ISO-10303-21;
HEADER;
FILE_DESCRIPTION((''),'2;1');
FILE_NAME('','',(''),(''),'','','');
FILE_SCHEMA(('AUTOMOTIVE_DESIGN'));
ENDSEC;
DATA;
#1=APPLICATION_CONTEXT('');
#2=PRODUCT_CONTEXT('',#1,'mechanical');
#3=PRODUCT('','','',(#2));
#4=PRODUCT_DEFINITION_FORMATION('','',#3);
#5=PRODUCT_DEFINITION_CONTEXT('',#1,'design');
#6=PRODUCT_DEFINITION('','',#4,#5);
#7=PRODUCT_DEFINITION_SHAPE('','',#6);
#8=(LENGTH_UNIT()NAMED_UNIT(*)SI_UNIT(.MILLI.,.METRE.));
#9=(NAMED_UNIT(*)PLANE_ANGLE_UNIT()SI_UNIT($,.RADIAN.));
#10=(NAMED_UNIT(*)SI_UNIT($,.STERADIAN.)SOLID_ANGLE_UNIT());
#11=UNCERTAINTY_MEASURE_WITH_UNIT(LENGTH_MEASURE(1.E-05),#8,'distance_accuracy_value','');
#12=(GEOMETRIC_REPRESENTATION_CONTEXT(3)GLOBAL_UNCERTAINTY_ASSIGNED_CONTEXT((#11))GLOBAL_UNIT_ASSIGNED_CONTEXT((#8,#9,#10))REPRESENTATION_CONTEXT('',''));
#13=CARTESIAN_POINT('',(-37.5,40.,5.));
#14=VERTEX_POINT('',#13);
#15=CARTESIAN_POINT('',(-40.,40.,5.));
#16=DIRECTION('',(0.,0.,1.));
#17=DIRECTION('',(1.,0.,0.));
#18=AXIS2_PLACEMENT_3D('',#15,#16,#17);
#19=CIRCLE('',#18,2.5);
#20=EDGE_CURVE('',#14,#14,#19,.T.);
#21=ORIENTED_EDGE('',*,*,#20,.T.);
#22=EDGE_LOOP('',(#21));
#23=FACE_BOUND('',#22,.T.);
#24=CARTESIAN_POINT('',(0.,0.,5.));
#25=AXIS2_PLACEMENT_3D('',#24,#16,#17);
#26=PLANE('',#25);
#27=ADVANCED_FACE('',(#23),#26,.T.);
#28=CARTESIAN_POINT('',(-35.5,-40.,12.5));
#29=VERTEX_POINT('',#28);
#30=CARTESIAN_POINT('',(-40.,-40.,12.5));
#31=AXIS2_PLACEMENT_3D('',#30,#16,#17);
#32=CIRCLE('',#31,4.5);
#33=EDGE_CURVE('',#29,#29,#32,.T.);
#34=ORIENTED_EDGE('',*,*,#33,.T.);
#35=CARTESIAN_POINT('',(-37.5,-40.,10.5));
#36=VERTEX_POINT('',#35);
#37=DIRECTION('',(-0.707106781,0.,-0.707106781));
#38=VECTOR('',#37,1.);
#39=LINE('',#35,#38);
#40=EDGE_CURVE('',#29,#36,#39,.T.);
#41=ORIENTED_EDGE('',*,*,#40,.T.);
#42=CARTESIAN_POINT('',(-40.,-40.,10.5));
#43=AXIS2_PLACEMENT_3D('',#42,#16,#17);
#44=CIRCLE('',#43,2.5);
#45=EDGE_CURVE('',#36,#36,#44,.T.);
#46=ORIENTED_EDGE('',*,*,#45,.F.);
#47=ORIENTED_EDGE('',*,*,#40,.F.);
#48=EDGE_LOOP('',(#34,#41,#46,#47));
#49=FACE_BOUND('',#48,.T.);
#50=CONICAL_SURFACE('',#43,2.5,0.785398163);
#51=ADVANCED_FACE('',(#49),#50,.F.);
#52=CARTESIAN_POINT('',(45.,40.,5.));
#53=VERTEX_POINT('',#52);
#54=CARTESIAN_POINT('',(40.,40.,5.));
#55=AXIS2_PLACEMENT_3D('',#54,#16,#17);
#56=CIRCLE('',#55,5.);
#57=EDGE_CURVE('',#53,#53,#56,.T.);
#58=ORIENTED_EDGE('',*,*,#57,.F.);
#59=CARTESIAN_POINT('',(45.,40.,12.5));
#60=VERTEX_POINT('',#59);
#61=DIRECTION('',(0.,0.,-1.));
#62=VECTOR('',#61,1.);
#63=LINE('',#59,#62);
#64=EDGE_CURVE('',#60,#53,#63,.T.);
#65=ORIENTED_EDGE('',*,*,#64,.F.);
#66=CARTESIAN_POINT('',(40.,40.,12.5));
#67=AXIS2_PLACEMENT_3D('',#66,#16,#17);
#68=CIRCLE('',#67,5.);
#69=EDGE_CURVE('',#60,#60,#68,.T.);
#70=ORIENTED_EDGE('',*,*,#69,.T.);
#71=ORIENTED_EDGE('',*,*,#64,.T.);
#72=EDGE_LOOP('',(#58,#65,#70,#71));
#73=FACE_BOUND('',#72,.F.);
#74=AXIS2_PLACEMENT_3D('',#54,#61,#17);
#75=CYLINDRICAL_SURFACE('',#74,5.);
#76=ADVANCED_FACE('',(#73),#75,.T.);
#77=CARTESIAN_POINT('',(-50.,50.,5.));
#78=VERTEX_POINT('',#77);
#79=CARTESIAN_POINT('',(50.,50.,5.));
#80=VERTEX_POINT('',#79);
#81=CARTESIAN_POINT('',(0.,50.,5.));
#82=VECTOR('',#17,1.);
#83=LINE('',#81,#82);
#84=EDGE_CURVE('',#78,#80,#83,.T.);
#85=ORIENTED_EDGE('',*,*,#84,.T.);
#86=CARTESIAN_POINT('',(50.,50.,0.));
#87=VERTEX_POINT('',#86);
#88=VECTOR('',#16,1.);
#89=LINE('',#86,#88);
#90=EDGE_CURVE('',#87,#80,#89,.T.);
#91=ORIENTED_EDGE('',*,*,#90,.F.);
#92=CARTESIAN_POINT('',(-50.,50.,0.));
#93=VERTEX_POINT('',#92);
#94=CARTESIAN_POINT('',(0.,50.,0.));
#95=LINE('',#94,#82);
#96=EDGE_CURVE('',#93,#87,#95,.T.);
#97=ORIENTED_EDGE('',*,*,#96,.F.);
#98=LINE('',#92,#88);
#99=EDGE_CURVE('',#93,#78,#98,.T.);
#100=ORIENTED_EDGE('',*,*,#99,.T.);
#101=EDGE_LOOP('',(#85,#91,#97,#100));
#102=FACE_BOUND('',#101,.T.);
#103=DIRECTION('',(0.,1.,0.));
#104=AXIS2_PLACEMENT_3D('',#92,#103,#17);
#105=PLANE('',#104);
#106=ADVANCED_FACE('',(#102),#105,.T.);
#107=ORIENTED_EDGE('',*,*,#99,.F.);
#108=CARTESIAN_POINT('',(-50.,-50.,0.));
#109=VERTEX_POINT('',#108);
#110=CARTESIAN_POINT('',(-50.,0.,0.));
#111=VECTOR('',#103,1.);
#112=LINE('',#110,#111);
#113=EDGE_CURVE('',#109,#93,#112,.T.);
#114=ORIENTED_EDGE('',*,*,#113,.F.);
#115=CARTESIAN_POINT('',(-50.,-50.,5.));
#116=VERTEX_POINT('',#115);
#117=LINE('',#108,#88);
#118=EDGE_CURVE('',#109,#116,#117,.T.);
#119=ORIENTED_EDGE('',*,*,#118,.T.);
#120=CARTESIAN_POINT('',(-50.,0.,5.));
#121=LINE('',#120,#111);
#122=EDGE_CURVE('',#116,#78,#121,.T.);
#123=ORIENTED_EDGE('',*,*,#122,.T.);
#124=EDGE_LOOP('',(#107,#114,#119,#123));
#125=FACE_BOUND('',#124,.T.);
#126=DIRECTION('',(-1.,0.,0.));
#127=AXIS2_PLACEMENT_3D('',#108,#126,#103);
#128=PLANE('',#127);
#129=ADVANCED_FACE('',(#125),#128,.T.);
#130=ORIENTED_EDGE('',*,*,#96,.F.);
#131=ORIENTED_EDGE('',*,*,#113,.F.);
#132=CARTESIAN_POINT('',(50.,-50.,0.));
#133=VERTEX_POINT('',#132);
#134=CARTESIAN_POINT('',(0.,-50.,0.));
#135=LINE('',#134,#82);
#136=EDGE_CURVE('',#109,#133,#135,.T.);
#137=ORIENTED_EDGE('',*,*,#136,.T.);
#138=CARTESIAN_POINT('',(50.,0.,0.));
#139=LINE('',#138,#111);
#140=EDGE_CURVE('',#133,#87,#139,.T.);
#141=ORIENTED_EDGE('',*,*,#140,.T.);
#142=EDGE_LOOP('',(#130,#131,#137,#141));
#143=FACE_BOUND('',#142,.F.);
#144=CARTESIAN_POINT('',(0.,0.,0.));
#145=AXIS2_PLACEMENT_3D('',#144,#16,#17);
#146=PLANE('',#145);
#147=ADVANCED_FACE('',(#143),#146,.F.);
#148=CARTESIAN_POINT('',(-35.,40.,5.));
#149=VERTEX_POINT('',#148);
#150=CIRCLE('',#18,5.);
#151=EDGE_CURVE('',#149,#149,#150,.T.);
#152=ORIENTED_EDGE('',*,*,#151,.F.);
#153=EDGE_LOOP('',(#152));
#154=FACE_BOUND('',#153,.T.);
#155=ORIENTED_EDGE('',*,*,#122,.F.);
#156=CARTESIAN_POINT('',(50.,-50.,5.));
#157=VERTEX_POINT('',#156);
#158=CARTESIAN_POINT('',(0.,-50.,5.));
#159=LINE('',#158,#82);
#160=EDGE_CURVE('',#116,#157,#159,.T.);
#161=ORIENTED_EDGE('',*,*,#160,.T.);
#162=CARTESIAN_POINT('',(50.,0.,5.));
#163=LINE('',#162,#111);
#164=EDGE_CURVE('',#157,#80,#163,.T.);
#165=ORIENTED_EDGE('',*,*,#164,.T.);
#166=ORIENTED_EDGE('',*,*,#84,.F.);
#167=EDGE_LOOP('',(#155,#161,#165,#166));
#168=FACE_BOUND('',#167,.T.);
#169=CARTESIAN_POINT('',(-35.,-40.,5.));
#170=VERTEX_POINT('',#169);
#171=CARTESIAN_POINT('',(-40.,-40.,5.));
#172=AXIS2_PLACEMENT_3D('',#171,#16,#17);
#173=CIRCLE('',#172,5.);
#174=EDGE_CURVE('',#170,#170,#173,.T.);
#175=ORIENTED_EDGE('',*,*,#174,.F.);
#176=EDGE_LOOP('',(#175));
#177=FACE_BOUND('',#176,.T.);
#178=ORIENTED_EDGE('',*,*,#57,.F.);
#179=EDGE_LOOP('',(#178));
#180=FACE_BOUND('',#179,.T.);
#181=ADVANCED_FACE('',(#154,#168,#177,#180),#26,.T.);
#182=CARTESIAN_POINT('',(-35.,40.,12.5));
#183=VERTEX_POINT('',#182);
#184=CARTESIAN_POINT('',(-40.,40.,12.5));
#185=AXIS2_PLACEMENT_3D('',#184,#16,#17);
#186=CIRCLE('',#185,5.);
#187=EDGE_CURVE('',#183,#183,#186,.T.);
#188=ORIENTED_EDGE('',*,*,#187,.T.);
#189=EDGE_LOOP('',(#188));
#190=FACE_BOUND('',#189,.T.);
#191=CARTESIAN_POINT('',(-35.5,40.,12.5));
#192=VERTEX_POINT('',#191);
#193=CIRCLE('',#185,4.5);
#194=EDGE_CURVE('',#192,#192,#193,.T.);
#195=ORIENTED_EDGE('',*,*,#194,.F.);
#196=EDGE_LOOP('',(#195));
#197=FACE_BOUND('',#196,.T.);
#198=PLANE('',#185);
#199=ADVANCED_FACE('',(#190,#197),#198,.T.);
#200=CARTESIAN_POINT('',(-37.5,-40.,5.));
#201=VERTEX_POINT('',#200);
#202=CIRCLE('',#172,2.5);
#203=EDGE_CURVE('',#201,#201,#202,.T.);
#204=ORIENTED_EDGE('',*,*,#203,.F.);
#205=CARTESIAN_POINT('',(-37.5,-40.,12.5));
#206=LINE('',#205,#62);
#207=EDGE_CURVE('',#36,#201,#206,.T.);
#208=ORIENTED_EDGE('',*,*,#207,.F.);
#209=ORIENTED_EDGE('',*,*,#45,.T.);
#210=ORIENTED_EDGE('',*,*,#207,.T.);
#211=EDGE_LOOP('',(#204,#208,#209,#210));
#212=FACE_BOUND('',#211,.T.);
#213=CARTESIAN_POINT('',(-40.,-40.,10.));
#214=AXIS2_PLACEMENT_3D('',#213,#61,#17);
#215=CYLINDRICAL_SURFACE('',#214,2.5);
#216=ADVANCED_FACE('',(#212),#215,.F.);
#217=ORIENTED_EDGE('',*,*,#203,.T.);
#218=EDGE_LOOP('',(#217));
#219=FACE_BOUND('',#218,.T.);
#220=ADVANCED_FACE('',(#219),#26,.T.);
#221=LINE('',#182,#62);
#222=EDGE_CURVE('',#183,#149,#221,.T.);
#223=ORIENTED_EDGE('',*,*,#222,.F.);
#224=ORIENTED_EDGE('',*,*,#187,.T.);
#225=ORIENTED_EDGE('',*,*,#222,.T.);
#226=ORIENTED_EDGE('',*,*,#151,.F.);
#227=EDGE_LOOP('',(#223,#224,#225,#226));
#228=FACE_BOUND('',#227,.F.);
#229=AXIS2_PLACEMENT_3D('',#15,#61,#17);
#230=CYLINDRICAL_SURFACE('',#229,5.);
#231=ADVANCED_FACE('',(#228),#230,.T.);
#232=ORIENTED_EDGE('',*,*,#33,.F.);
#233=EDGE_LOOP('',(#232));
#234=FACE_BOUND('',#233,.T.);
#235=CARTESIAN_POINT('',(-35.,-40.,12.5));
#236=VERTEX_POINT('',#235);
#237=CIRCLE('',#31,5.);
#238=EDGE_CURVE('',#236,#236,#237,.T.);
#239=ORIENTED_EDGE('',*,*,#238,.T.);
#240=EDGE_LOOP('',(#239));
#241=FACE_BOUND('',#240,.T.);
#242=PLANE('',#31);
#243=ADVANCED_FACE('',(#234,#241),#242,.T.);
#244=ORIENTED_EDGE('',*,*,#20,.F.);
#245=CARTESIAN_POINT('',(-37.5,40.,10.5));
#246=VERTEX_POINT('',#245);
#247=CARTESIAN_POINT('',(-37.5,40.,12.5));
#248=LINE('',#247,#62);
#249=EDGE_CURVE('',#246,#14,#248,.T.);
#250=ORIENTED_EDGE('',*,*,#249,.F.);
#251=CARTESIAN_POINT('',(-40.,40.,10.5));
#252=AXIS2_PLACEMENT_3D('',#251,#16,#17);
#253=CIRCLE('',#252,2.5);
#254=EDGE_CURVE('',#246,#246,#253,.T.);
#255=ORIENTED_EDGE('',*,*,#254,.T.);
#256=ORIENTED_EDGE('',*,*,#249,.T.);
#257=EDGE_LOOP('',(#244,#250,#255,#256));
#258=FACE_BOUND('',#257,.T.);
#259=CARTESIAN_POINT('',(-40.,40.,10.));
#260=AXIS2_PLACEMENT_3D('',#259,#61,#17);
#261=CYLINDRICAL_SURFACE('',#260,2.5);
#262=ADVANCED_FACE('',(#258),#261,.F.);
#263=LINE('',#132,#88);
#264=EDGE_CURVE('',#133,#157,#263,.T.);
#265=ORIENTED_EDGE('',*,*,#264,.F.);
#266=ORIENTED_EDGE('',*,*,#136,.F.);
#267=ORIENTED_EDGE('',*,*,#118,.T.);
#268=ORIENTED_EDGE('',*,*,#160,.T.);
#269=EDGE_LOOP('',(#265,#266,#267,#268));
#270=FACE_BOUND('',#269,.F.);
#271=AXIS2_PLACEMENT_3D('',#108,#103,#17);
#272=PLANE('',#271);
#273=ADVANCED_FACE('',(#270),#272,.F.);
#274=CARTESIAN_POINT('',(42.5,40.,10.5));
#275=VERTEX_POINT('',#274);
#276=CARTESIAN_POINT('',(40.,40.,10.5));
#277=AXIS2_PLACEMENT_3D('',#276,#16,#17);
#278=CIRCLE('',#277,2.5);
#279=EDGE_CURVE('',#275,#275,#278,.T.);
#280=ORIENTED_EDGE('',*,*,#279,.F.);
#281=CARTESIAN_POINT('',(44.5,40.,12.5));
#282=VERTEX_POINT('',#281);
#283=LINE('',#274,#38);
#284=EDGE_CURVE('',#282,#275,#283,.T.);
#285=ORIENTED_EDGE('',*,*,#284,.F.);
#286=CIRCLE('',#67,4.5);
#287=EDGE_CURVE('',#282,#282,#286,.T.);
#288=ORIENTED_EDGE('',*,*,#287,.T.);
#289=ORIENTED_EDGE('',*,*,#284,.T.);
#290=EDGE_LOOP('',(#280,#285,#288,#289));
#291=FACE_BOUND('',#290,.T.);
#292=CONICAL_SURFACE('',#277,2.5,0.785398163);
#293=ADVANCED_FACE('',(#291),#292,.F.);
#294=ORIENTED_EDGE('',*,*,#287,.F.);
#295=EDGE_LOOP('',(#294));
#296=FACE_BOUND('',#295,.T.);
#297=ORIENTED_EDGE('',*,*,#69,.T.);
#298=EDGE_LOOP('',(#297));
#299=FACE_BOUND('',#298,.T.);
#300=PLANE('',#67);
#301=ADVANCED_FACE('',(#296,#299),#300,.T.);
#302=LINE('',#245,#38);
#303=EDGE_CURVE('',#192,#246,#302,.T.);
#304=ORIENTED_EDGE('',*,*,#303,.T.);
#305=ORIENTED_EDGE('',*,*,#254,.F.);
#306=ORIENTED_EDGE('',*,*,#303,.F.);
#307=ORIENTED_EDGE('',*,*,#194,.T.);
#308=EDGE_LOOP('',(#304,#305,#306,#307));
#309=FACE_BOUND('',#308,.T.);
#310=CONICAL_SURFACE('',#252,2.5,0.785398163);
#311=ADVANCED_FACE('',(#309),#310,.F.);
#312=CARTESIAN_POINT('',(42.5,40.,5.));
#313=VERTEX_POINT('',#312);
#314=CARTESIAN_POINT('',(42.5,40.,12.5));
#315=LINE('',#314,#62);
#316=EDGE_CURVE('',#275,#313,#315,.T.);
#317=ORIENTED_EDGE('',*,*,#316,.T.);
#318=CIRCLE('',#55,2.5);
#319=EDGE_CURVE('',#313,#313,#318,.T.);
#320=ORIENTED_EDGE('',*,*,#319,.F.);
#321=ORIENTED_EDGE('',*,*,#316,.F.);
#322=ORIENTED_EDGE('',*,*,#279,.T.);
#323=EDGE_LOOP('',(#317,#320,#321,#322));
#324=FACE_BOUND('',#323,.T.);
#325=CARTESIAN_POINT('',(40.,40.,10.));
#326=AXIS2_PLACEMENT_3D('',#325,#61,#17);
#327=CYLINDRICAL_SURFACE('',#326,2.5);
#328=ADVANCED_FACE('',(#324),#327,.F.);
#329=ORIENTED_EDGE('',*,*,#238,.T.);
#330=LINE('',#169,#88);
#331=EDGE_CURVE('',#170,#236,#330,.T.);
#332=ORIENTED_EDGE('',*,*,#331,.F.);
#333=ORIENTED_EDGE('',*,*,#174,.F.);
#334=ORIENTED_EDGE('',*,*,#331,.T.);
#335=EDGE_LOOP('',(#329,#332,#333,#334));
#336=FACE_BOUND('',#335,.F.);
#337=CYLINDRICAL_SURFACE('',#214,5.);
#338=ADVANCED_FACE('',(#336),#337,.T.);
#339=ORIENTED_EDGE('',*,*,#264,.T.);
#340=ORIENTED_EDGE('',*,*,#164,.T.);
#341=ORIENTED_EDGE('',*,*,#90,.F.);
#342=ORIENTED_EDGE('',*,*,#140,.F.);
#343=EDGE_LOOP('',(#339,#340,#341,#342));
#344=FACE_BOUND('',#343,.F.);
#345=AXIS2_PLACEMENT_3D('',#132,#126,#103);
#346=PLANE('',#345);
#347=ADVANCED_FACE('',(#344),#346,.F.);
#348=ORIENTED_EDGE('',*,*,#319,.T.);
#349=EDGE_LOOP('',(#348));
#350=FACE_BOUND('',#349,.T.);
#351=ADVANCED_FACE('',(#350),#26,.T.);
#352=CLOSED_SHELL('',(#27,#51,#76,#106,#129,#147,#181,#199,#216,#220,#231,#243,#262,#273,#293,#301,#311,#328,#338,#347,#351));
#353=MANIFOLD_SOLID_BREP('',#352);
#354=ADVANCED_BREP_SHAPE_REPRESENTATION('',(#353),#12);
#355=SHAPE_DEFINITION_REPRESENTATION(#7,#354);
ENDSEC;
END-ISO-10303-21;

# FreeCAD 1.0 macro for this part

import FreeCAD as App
import Part
import Sketcher
from FreeCAD import Vector
Q = App.Units.Quantity


def edges_at(feature, points):
    """Names of the edges that pass closest to the given points."""
    edges = feature.Shape.Edges
    near = lambda p: min(range(len(edges)), key=lambda i: edges[i].distToShape(Part.Vertex(*p))[0])
    return sorted({f"Edge{near(p) + 1}" for p in points})


def add_polygon(sketch, points):
    """Adds a closed chain of lines whose ends are joined by coincident constraints."""
    first, n = sketch.GeometryCount, len(points)
    for a, b in zip(points, points[1:] + points[:1]):
        sketch.addGeometry(Part.LineSegment(App.Vector(*a, 0), App.Vector(*b, 0)), False)
    for i in range(n):
        sketch.addConstraint(Sketcher.Constraint("Coincident", first + i, 2, first + (i + 1) % n, 1))

doc = App.newDocument("Part")
params = doc.addObject("Spreadsheet::Sheet", "Params")
for row, (alias, value) in enumerate([
    ("sketch1_width", "100 mm"),
    ("pad1_length", "5 mm"),
    ("sketch2_diameter", "10 mm"),
    ("sketch2_diameter2", "5 mm"),
    ("pad2_length", "5 mm"),
    ("sketch3_diameter", "10 mm"),
    ("sketch3_diameter2", "5 mm"),
    ("pad3_length", "2.5 mm"),
    ("chamfer_size", "2 mm"),
], start=1):
    params.set(f"A{row}", alias)
    params.set(f"B{row}", "=" + value)
    params.setAlias(f"B{row}", alias)

body = doc.addObject("PartDesign::Body", "Body")

# Sketch on XY plane
sketch1 = body.newObject("Sketcher::SketchObject", "Sketch")
sketch1.AttachmentSupport = (doc.getObject("XY_Plane"), [""])
sketch1.MapMode = "FlatFace"
add_polygon(sketch1, [(-50, 50), (-50, -50), (50, -50), (50, 50)])  # lines 0-3
sketch1.addConstraint([
    Sketcher.Constraint("Vertical", 0),
    Sketcher.Constraint("Horizontal", 1),
    Sketcher.Constraint("Vertical", 2),
    Sketcher.Constraint("Horizontal", 3),
    Sketcher.Constraint("Symmetric", 0, 2, 2, 2, -1, 1),
    Sketcher.Constraint("Equal", 3, 0),
    Sketcher.Constraint("DistanceX", 1, 1, 1, 2, Q("100 mm")),
])
sketch1.setExpression("Constraints[10]", "Params.sketch1_width")
pad1 = body.newObject("PartDesign::Pad", "Pad")
pad1.Profile = sketch1
pad1.setExpression("Length", "Params.pad1_length")

# Sketch on XY plane
sketch2 = body.newObject("Sketcher::SketchObject", "Sketch001")
sketch2.AttachmentSupport = (doc.getObject("XY_Plane"), [""])
sketch2.MapMode = "FlatFace"
sketch2.AttachmentOffset = App.Placement(Vector(0, 0, 5), App.Rotation())
sketch2.addGeometry([
    Part.Circle(Vector(-40, 40, 0), Vector(0, 0, 1), 5),  # 0
    Part.Circle(Vector(-40, 40, 0), Vector(0, 0, 1), 2.5),  # 1
    Part.Circle(Vector(-40, -40, 0), Vector(0, 0, 1), 5),  # 2
    Part.Circle(Vector(-40, -40, 0), Vector(0, 0, 1), 2.5),  # 3
    Part.Circle(Vector(40, 40, 0), Vector(0, 0, 1), 5),  # 4
    Part.Circle(Vector(40, 40, 0), Vector(0, 0, 1), 2.5),  # 5
], False)
sketch2.addConstraint([
    Sketcher.Constraint("Coincident", 1, 3, 0, 3),
    Sketcher.Constraint("Coincident", 3, 3, 2, 3),
    Sketcher.Constraint("Coincident", 5, 3, 4, 3),
    Sketcher.Constraint("Equal", 0, 2),
    Sketcher.Constraint("Equal", 1, 3),
    Sketcher.Constraint("Equal", 2, 4),
    Sketcher.Constraint("Equal", 3, 5),
    Sketcher.Constraint("Symmetric", 2, 3, 4, 3, -1, 1),
    Sketcher.Constraint("Symmetric", 0, 3, 4, 3, -2),
    Sketcher.Constraint("Diameter", 0, Q("10 mm")),
    Sketcher.Constraint("Diameter", 1, Q("5 mm")),
    Sketcher.Constraint("DistanceX", 0, 3, -1, 1, Q("40 mm")),
    Sketcher.Constraint("DistanceY", -1, 1, 0, 3, Q("40 mm")),
])
sketch2.setExpression("Constraints[9]", "Params.sketch2_diameter")
sketch2.setExpression("Constraints[10]", "Params.sketch2_diameter2")
pad2 = body.newObject("PartDesign::Pad", "Pad001")
pad2.Profile = sketch2
pad2.setExpression("Length", "Params.pad2_length")

# Sketch on XY plane
sketch3 = body.newObject("Sketcher::SketchObject", "Sketch002")
sketch3.AttachmentSupport = (doc.getObject("XY_Plane"), [""])
sketch3.MapMode = "FlatFace"
sketch3.AttachmentOffset = App.Placement(Vector(0, 0, 10), App.Rotation())
sketch3.addGeometry([
    Part.Circle(Vector(-40, -40, 0), Vector(0, 0, 1), 5),  # 0
    Part.Circle(Vector(-40, -40, 0), Vector(0, 0, 1), 2.5),  # 1
    Part.Circle(Vector(40, 40, 0), Vector(0, 0, 1), 5),  # 2
    Part.Circle(Vector(40, 40, 0), Vector(0, 0, 1), 2.5),  # 3
    Part.Circle(Vector(-40, 40, 0), Vector(0, 0, 1), 5),  # 4
    Part.Circle(Vector(-40, 40, 0), Vector(0, 0, 1), 2.5),  # 5
], False)
sketch3.addConstraint([
    Sketcher.Constraint("Coincident", 1, 3, 0, 3),
    Sketcher.Constraint("Coincident", 3, 3, 2, 3),
    Sketcher.Constraint("Coincident", 5, 3, 4, 3),
    Sketcher.Constraint("Equal", 0, 2),
    Sketcher.Constraint("Equal", 1, 3),
    Sketcher.Constraint("Equal", 2, 4),
    Sketcher.Constraint("Equal", 3, 5),
    Sketcher.Constraint("Symmetric", 0, 3, 2, 3, -1, 1),
    Sketcher.Constraint("Symmetric", 2, 3, 4, 3, -2),
    Sketcher.Constraint("Diameter", 0, Q("10 mm")),
    Sketcher.Constraint("Diameter", 1, Q("5 mm")),
    Sketcher.Constraint("DistanceX", 0, 3, -1, 1, Q("40 mm")),
    Sketcher.Constraint("DistanceY", 0, 3, -1, 1, Q("40 mm")),
])
sketch3.setExpression("Constraints[9]", "Params.sketch3_diameter")
sketch3.setExpression("Constraints[10]", "Params.sketch3_diameter2")
pad3 = body.newObject("PartDesign::Pad", "Pad002")
pad3.Profile = sketch3
pad3.setExpression("Length", "Params.pad3_length")
doc.recompute()

chamfer = body.newObject("PartDesign::Chamfer", "Chamfer")
chamfer.Base = (pad3, edges_at(pad3, [(-42.5, 40, 12.5), (-42.5, -40, 12.5), (37.5, 40, 12.5)]))
chamfer.setExpression("Size", "Params.chamfer_size")

doc.recompute()
